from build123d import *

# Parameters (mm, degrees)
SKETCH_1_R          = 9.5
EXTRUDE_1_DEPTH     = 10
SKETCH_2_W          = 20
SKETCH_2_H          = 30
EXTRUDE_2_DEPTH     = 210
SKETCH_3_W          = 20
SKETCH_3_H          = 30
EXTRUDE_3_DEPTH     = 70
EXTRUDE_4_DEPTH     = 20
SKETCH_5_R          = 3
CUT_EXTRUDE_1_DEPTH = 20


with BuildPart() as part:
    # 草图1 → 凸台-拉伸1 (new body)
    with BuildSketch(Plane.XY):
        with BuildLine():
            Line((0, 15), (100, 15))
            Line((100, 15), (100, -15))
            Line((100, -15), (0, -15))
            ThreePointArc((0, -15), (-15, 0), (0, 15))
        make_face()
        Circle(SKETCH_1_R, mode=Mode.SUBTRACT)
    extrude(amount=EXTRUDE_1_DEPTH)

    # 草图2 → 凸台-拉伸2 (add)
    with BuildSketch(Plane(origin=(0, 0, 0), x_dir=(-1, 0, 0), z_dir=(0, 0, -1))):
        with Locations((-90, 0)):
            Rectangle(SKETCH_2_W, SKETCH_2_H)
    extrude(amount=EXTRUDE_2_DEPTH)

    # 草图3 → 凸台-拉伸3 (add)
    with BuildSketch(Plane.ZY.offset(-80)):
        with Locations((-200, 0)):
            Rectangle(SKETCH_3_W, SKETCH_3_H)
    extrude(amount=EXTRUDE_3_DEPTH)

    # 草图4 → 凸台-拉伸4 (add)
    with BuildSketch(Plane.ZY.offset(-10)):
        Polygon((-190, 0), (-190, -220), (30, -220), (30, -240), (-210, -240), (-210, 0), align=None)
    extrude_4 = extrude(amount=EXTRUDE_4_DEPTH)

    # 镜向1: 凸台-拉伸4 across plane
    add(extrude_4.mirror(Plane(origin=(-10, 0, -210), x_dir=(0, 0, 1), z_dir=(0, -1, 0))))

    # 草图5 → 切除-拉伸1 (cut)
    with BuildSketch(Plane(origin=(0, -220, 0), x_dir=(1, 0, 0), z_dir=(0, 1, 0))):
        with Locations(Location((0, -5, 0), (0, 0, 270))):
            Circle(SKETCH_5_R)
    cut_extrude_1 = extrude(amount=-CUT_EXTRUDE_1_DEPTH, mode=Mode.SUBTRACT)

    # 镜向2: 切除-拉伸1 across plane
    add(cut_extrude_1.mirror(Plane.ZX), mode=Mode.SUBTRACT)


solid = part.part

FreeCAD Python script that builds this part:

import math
import FreeCAD as App
import Part
import Sketcher

V = App.Vector
Q = App.Units.Quantity

doc = App.newDocument("Part")
params = doc.addObject("Spreadsheet::Sheet", "Params")
for row, (alias, value) in enumerate([
    ("sketch1_diameter", "19 mm"),
    ("sketch1_radius", "15 mm"),
    ("sketch1_width", "100 mm"),
    ("pad1_length", "10 mm"),
    ("sketch2_width", "20 mm"),
    ("sketch2_height", "30 mm"),
    ("pad2_length", "210 mm"),
    ("sketch3_width", "30 mm"),
    ("sketch3_height", "20 mm"),
    ("pad3_length", "70 mm"),
    ("sketch4_width", "220 mm"),
    ("sketch4_width2", "240 mm"),
    ("pad4_length", "20 mm"),
    ("sketch5_diameter", "6 mm"),
    ("pocket1_length", "20 mm"),
], start=1):
    params.set(f"A{row}", alias)
    params.set(f"B{row}", "=" + value)
    params.setAlias(f"B{row}", alias)

body = doc.addObject("PartDesign::Body", "Body")

# Sketch on XY plane
sketch1 = doc.addObject("Sketcher::SketchObject", "Sketch")
body.addObject(sketch1)
sketch1.AttachmentSupport = (doc.XY_Plane, [""])
sketch1.MapMode = "FlatFace"
sketch1.addGeometry([
    Part.LineSegment(V(100, 15, 0), V(0, 15, 0)),  # 0
    Part.ArcOfCircle(Part.Circle(V(0, 0, 0), V(0, 0, 1), 15), math.radians(90), math.radians(270)),  # 1
    Part.LineSegment(V(0, -15, 0), V(100, -15, 0)),  # 2
    Part.LineSegment(V(100, -15, 0), V(100, 15, 0)),  # 3
    Part.Circle(V(0, 0, 0), V(0, 0, 1), 10),  # 4
], False)
sketch1.addConstraint([
    Sketcher.Constraint("Tangent", 0, 2, 1, 1),
    Sketcher.Constraint("Tangent", 1, 2, 2, 1),
    Sketcher.Constraint("Coincident", 2, 2, 3, 1),
    Sketcher.Constraint("Coincident", 3, 2, 0, 1),
    Sketcher.Constraint("Horizontal", 0),
    Sketcher.Constraint("Horizontal", 2),
    Sketcher.Constraint("Vertical", 3),
    Sketcher.Constraint("Coincident", 1, 3, -1, 1),
    Sketcher.Constraint("Coincident", 4, 3, -1, 1),
    Sketcher.Constraint("Diameter", 4, Q("19 mm")),
    Sketcher.Constraint("Radius", 1, Q("15 mm")),
    Sketcher.Constraint("DistanceX", 0, 2, 0, 1, Q("100 mm")),
])
sketch1.setExpression("Constraints[9]", "Params.sketch1_diameter")
sketch1.setExpression("Constraints[10]", "Params.sketch1_radius")
sketch1.setExpression("Constraints[11]", "Params.sketch1_width")
pad1 = doc.addObject("PartDesign::Pad", "Pad")
body.addObject(pad1)
pad1.Profile = sketch1
pad1.setExpression("Length", "Params.pad1_length")

# Sketch on XY plane
sketch2 = doc.addObject("Sketcher::SketchObject", "Sketch001")
body.addObject(sketch2)
sketch2.AttachmentSupport = (doc.XY_Plane, [""])
sketch2.MapMode = "FlatFace"
sketch2.addGeometry([
    Part.LineSegment(V(100, 15, 0), V(100, -15, 0)),
    Part.LineSegment(V(100, -15, 0), V(80, -15, 0)),
    Part.LineSegment(V(80, -15, 0), V(80, 15, 0)),
    Part.LineSegment(V(80, 15, 0), V(100, 15, 0)),
], False)
sketch2.addConstraint([
    Sketcher.Constraint("Coincident", 0, 2, 1, 1),
    Sketcher.Constraint("Coincident", 1, 2, 2, 1),
    Sketcher.Constraint("Coincident", 2, 2, 3, 1),
    Sketcher.Constraint("Coincident", 3, 2, 0, 1),
    Sketcher.Constraint("Vertical", 0),
    Sketcher.Constraint("Horizontal", 1),
    Sketcher.Constraint("Vertical", 2),
    Sketcher.Constraint("Horizontal", 3),
    Sketcher.Constraint("DistanceX", 1, 2, 1, 1, Q("20 mm")),
    Sketcher.Constraint("DistanceY", 0, 2, 0, 1, Q("30 mm")),
    Sketcher.Constraint("DistanceX", -1, 1, 0, 2, Q("100 mm")),
    Sketcher.Constraint("DistanceY", 0, 2, -1, 1, Q("15 mm")),
])
sketch2.setExpression("Constraints[8]", "Params.sketch2_width")
sketch2.setExpression("Constraints[9]", "Params.sketch2_height")
pad2 = doc.addObject("PartDesign::Pad", "Pad001")
body.addObject(pad2)
pad2.Profile = sketch2
pad2.setExpression("Length", "Params.pad2_length")
pad2.Reversed = True

# Sketch on YZ plane
sketch3 = doc.addObject("Sketcher::SketchObject", "Sketch002")
body.addObject(sketch3)
sketch3.AttachmentSupport = (doc.YZ_Plane, [""])
sketch3.MapMode = "FlatFace"
sketch3.AttachmentOffset = App.Placement(V(0, 0, 80), App.Rotation())
sketch3.addGeometry([
    Part.LineSegment(V(15, -210, 0), V(-15, -210, 0)),
    Part.LineSegment(V(-15, -210, 0), V(-15, -190, 0)),
    Part.LineSegment(V(-15, -190, 0), V(15, -190, 0)),
    Part.LineSegment(V(15, -190, 0), V(15, -210, 0)),
], False)
sketch3.addConstraint([
    Sketcher.Constraint("Coincident", 0, 2, 1, 1),
    Sketcher.Constraint("Coincident", 1, 2, 2, 1),
    Sketcher.Constraint("Coincident", 2, 2, 3, 1),
    Sketcher.Constraint("Coincident", 3, 2, 0, 1),
    Sketcher.Constraint("Horizontal", 0),
    Sketcher.Constraint("Vertical", 1),
    Sketcher.Constraint("Horizontal", 2),
    Sketcher.Constraint("Vertical", 3),
    Sketcher.Constraint("DistanceX", 0, 2, 0, 1, Q("30 mm")),
    Sketcher.Constraint("DistanceY", 1, 1, 1, 2, Q("20 mm")),
    Sketcher.Constraint("DistanceX", 0, 2, -1, 1, Q("15 mm")),
    Sketcher.Constraint("DistanceY", 0, 2, -1, 1, Q("210 mm")),
])
sketch3.setExpression("Constraints[8]", "Params.sketch3_width")
sketch3.setExpression("Constraints[9]", "Params.sketch3_height")
pad3 = doc.addObject("PartDesign::Pad", "Pad002")
body.addObject(pad3)
pad3.Profile = sketch3
pad3.setExpression("Length", "Params.pad3_length")
pad3.Reversed = True

# Sketch on YZ plane
sketch4 = doc.addObject("Sketcher::SketchObject", "Sketch003")
body.addObject(sketch4)
sketch4.AttachmentSupport = (doc.YZ_Plane, [""])
sketch4.MapMode = "FlatFace"
sketch4.AttachmentOffset = App.Placement(V(0, 0, 10), App.Rotation())
sketch4.addGeometry([
    Part.LineSegment(V(-220, -190, 0), V(0, -190, 0)),  # 0
    Part.LineSegment(V(0, -190, 0), V(0, -210, 0)),  # 1
    Part.LineSegment(V(0, -210, 0), V(-240, -210, 0)),  # 2
    Part.LineSegment(V(-240, -210, 0), V(-240, 30, 0)),  # 3
    Part.LineSegment(V(-240, 30, 0), V(-220, 30, 0)),  # 4
    Part.LineSegment(V(-220, 30, 0), V(-220, -190, 0)),  # 5
], False)
sketch4.addConstraint([
    Sketcher.Constraint("Coincident", 0, 2, 1, 1),
    Sketcher.Constraint("Coincident", 1, 2, 2, 1),
    Sketcher.Constraint("Coincident", 2, 2, 3, 1),
    Sketcher.Constraint("Coincident", 3, 2, 4, 1),
    Sketcher.Constraint("Coincident", 4, 2, 5, 1),
    Sketcher.Constraint("Coincident", 5, 2, 0, 1),
    Sketcher.Constraint("Horizontal", 0),
    Sketcher.Constraint("Vertical", 1),
    Sketcher.Constraint("Horizontal", 2),
    Sketcher.Constraint("Vertical", 3),
    Sketcher.Constraint("Horizontal", 4),
    Sketcher.Constraint("Vertical", 5),
    Sketcher.Constraint("PointOnObject", 0, 2, -2),
    Sketcher.Constraint("Equal", 4, 1),
    Sketcher.Constraint("Equal", 2, 3),
    Sketcher.Constraint("DistanceX", 0, 1, 0, 2, Q("220 mm")),
    Sketcher.Constraint("DistanceX", 2, 2, 2, 1, Q("240 mm")),
    Sketcher.Constraint("DistanceY", 0, 2, -1, 1, Q("190 mm")),
])
sketch4.setExpression("Constraints[15]", "Params.sketch4_width")
sketch4.setExpression("Constraints[16]", "Params.sketch4_width2")
pad4 = doc.addObject("PartDesign::Pad", "Pad003")
body.addObject(pad4)
pad4.Profile = sketch4
pad4.setExpression("Length", "Params.pad4_length")
pad4.Reversed = True
doc.recompute()

mirrored = doc.addObject("PartDesign::Mirrored", "Mirrored")
body.addObject(mirrored)
mirrored.Originals = [pad4]
mirrored.MirrorPlane = (doc.XZ_Plane, [""])
body.Tip = mirrored

# Sketch on XZ plane
sketch5 = doc.addObject("Sketcher::SketchObject", "Sketch004")
body.addObject(sketch5)
sketch5.AttachmentSupport = (doc.XZ_Plane, [""])
sketch5.MapMode = "FlatFace"
sketch5.AttachmentOffset = App.Placement(V(0, 0, 220), App.Rotation())
sketch5.addGeometry(Part.Circle(V(0, 5, 0), V(0, 0, 1), 3), False)
sketch5.addConstraint([
    Sketcher.Constraint("PointOnObject", 0, 3, -2),
    Sketcher.Constraint("Diameter", 0, Q("6 mm")),
    Sketcher.Constraint("DistanceY", -1, 1, 0, 3, Q("5 mm")),
])
sketch5.setExpression("Constraints[1]", "Params.sketch5_diameter")
pocket1 = doc.addObject("PartDesign::Pocket", "Pocket")
body.addObject(pocket1)
pocket1.Profile = sketch5
pocket1.setExpression("Length", "Params.pocket1_length")
pocket1.Reversed = True
doc.recompute()

mirrored2 = doc.addObject("PartDesign::Mirrored", "Mirrored001")
body.addObject(mirrored2)
mirrored2.Originals = [pocket1]
mirrored2.MirrorPlane = (doc.XZ_Plane, [""])
body.Tip = mirrored2

doc.recompute()
